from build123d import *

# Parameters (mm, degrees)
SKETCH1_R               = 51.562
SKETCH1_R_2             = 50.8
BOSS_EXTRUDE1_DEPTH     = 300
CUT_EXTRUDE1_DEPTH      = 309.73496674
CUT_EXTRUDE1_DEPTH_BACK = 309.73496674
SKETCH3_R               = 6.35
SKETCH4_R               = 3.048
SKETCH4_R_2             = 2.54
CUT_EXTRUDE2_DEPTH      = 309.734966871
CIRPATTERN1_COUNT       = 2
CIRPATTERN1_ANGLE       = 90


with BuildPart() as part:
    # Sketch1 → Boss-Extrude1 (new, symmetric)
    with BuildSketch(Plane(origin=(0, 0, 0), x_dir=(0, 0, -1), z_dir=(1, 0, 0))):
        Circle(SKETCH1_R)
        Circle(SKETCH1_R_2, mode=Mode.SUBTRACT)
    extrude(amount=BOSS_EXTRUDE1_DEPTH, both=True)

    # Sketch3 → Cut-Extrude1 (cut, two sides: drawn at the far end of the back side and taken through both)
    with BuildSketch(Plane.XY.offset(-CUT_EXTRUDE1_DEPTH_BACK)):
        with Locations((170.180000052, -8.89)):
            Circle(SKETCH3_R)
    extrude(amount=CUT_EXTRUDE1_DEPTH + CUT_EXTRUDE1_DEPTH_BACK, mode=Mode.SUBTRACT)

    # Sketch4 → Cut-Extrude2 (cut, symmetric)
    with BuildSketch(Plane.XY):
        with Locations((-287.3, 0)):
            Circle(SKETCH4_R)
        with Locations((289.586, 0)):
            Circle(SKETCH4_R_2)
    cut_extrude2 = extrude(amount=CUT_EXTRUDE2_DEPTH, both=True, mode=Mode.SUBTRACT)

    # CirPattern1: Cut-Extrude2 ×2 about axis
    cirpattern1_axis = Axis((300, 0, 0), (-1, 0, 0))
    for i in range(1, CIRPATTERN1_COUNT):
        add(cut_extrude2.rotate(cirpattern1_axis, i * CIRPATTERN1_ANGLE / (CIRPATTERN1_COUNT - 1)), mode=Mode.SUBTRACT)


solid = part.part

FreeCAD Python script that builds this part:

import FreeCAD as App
import Part
import Sketcher
from FreeCAD import Vector
Q = App.Units.Quantity

doc = App.newDocument("Part")
body = doc.addObject("PartDesign::Body", "Body")

# Sketch on YZ plane
sketch1 = doc.addObject("Sketcher::SketchObject", "Sketch")
body.addObject(sketch1)
sketch1.AttachmentSupport = (doc.YZ_Plane, [""])
sketch1.MapMode = "FlatFace"
sketch1.addGeometry(Part.Circle(Vector(0, 0, 0), Vector(0, 0, 1), 51.562), False)
sketch1.addGeometry(Part.Circle(Vector(0, 0, 0), Vector(0, 0, 1), 50.8), False)
sketch1.addConstraint(Sketcher.Constraint("Coincident", 0, 3, -1, 1))
sketch1.addConstraint(Sketcher.Constraint("Coincident", 1, 3, -1, 1))
sketch1.addConstraint(Sketcher.Constraint("Diameter", 1, Q("4 in")))
sketch1.addConstraint(Sketcher.Constraint("Diameter", 0, Q("4.06 in")))
pad1 = doc.addObject("PartDesign::Pad", "Pad")
body.addObject(pad1)
pad1.Profile = sketch1
pad1.Length = 600
pad1.Midplane = True

# Sketch on XY plane
sketch2 = doc.addObject("Sketcher::SketchObject", "Sketch001")
body.addObject(sketch2)
sketch2.AttachmentSupport = (doc.XY_Plane, [""])
sketch2.MapMode = "FlatFace"
sketch2.addGeometry(Part.Circle(Vector(170.18, -8.89, 0), Vector(0, 0, 1), 6.35), False)
sketch2.addConstraint(Sketcher.Constraint("Diameter", 0, Q("0.5 in")))
sketch2.addConstraint(Sketcher.Constraint("DistanceX", -1, 1, 0, 3, Q("6.7 in")))
sketch2.addConstraint(Sketcher.Constraint("DistanceY", 0, 3, -1, 1, Q("0.35 in")))
pocket1 = doc.addObject("PartDesign::Pocket", "Pocket")
body.addObject(pocket1)
pocket1.Profile = sketch2
pocket1.Type = "ThroughAll"
pocket1.Midplane = True

# Sketch on XY plane
sketch3 = doc.addObject("Sketcher::SketchObject", "Sketch002")
body.addObject(sketch3)
sketch3.AttachmentSupport = (doc.XY_Plane, [""])
sketch3.MapMode = "FlatFace"
sketch3.addGeometry(Part.Circle(Vector(-287.3, 0, 0), Vector(0, 0, 1), 3.048), False)
sketch3.addGeometry(Part.Circle(Vector(289.586, 0, 0), Vector(0, 0, 1), 2.54), False)
sketch3.addConstraint(Sketcher.Constraint("PointOnObject", 0, 3, -1))
sketch3.addConstraint(Sketcher.Constraint("PointOnObject", 1, 3, -1))
sketch3.addConstraint(Sketcher.Constraint("Diameter", 1, Q("0.2 in")))
sketch3.addConstraint(Sketcher.Constraint("Diameter", 0, Q("0.24 in")))
sketch3.addConstraint(Sketcher.Constraint("DistanceX", 0, 3, -1, 1, Q("287.3 mm")))
sketch3.addConstraint(Sketcher.Constraint("DistanceX", -1, 1, 1, 3, Q("289.586 mm")))
pocket2 = doc.addObject("PartDesign::Pocket", "Pocket001")
body.addObject(pocket2)
pocket2.Profile = sketch3
pocket2.Length = 619.469934
pocket2.Midplane = True
doc.recompute()

polarpattern = doc.addObject("PartDesign::PolarPattern", "PolarPattern")
body.addObject(polarpattern)
polarpattern.Originals = [pocket2]
polarpattern.Axis = (doc.X_Axis, [""])
polarpattern.Angle = 90
polarpattern.Occurrences = 2
polarpattern.Reversed = True
body.Tip = polarpattern

doc.recompute()
